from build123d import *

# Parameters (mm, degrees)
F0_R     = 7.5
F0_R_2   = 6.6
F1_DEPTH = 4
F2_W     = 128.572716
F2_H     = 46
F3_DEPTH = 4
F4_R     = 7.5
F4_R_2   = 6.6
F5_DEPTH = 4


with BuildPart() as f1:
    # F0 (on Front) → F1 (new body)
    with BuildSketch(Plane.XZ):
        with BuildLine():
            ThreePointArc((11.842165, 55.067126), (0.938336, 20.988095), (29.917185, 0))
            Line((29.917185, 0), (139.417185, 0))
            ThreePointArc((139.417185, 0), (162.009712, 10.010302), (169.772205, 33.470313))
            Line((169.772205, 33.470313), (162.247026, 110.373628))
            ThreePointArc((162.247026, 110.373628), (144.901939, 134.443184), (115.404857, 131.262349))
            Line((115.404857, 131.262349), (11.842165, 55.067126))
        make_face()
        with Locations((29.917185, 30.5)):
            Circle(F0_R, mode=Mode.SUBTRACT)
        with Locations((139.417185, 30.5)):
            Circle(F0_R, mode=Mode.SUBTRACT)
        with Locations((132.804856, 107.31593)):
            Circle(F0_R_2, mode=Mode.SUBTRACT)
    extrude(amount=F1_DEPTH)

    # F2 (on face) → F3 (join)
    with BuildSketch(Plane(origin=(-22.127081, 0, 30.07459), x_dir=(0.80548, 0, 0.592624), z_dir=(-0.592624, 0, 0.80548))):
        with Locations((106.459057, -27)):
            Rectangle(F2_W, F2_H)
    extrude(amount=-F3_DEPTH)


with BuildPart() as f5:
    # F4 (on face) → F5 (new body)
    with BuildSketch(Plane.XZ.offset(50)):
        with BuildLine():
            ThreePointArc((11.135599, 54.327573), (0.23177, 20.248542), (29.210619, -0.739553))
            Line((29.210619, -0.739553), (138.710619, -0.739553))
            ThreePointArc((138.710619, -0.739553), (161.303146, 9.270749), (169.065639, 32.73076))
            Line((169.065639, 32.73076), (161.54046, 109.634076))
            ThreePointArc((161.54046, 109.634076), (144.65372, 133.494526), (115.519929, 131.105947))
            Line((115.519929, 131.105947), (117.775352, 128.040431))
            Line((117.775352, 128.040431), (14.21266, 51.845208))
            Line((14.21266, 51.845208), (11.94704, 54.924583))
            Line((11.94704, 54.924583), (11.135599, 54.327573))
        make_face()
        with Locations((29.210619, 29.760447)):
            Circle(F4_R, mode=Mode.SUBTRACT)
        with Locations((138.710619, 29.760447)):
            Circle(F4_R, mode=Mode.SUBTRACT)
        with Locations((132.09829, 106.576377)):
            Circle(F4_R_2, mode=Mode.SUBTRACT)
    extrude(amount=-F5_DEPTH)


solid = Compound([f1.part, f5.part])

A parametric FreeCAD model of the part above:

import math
import FreeCAD as App
import Part
import Sketcher

V = App.Vector


def add_polygon(sketch, points):
    """Adds a closed chain of lines whose ends are joined by coincident constraints."""
    first, n = sketch.GeometryCount, len(points)
    for a, b in zip(points, points[1:] + points[:1]):
        sketch.addGeometry(Part.LineSegment(App.Vector(*a, 0), App.Vector(*b, 0)), False)
    for i in range(n):
        sketch.addConstraint(Sketcher.Constraint("Coincident", first + i, 2, first + (i + 1) % n, 1))

doc = App.newDocument("Part")
body = doc.addObject("PartDesign::Body", "Body")

# Sketch on XZ plane
sketch1 = body.newObject("Sketcher::SketchObject", "Sketch")
sketch1.AttachmentSupport = (doc.getObject("XZ_Plane"), [""])
sketch1.MapMode = "FlatFace"
sketch1.addGeometry(Part.ArcOfCircle(Part.Circle(V(30, 31, 0), V(0, 0, 1), 31), math.radians(126), math.radians(270)), False)
sketch1.addGeometry(Part.LineSegment(V(30, 0, 0), V(139, 0, 0)), False)
sketch1.addGeometry(Part.ArcOfCircle(Part.Circle(V(139, 30, 0), V(0, 0, 1), 30), math.radians(-90), math.radians(6)), False)
sketch1.addGeometry(Part.LineSegment(V(170, 33, 0), V(162, 110, 0)), False)
sketch1.addGeometry(Part.ArcOfCircle(Part.Circle(V(133, 108, 0), V(0, 0, 1), 29), math.radians(6), math.radians(126)), False)
sketch1.addGeometry(Part.LineSegment(V(115, 131, 0), V(12, 55, 0)), False)
sketch1.addGeometry(Part.Circle(V(30, 30, 0), V(0, 0, 1), 8), False)
sketch1.addGeometry(Part.Circle(V(139, 30, 0), V(0, 0, 1), 8), False)
sketch1.addGeometry(Part.Circle(V(133, 107, 0), V(0, 0, 1), 7), False)
sketch1.addConstraint(Sketcher.Constraint("Tangent", 0, 2, 1, 1))
sketch1.addConstraint(Sketcher.Constraint("Tangent", 1, 2, 2, 1))
sketch1.addConstraint(Sketcher.Constraint("Tangent", 2, 2, 3, 1))
sketch1.addConstraint(Sketcher.Constraint("Tangent", 3, 2, 4, 1))
sketch1.addConstraint(Sketcher.Constraint("Tangent", 4, 2, 5, 1))
sketch1.addConstraint(Sketcher.Constraint("Tangent", 5, 2, 0, 1))
sketch1.addConstraint(Sketcher.Constraint("Horizontal", 1))
sketch1.addConstraint(Sketcher.Constraint("Coincident", 6, 3, 0, 3))
sketch1.addConstraint(Sketcher.Constraint("Coincident", 7, 3, 2, 3))
sketch1.addConstraint(Sketcher.Constraint("Equal", 0, 2))
sketch1.addConstraint(Sketcher.Constraint("Equal", 6, 7))
sketch1.addConstraint(Sketcher.Constraint("PointOnObject", 0, 2, -1))
sketch1.addConstraint(Sketcher.Constraint("Diameter", 6, 15.0))
sketch1.addConstraint(Sketcher.Constraint("Diameter", 8, 13.2))
sketch1.addConstraint(Sketcher.Constraint("Radius", 0, 30.5))
sketch1.addConstraint(Sketcher.Constraint("Radius", 4, 29.5))
sketch1.addConstraint(Sketcher.Constraint("DistanceX", 1, 1, 1, 2, 109.5))
sketch1.addConstraint(Sketcher.Constraint("DistanceX", 4, 2, 8, 3, 17.399999))
sketch1.addConstraint(Sketcher.Constraint("DistanceY", 8, 3, 3, 2, 3.057698))
sketch1.addConstraint(Sketcher.Constraint("DistanceY", -1, 1, 8, 3, 107.31593))
sketch1.addConstraint(Sketcher.Constraint("DistanceY", -1, 1, 4, 2, 131.262349))
sketch1.addConstraint(Sketcher.Constraint("DistanceX", -1, 1, 0, 3, 29.917185))
pad1 = body.newObject("PartDesign::Pad", "Pad")
pad1.Profile = sketch1
pad1.Length = 4

# Sketch on an angled plane
sketch2 = body.newObject("Sketcher::SketchObject", "Sketch001")
sketch2.Placement = App.Placement(V(-22.127081, 0, 30.07459), App.Rotation(V(0.805479502, 0, 0.592623634), V(0, 1, 0), V(-0.592623634, 0, 0.805479502), "ZXY"))
add_polygon(sketch2, [(42, -4), (42, -50), (171, -50), (171, -4)])  # lines 0-3
sketch2.addConstraint(Sketcher.Constraint("Vertical", 0))
sketch2.addConstraint(Sketcher.Constraint("Horizontal", 1))
sketch2.addConstraint(Sketcher.Constraint("Vertical", 2))
sketch2.addConstraint(Sketcher.Constraint("Horizontal", 3))
sketch2.addConstraint(Sketcher.Constraint("DistanceY", 0, 2, 0, 1, 46.0))
sketch2.addConstraint(Sketcher.Constraint("DistanceY", 0, 2, -1, 1, 50.0))
sketch2.addConstraint(Sketcher.Constraint("DistanceX", -1, 1, 0, 2, 42.172699))
sketch2.addConstraint(Sketcher.Constraint("DistanceX", 1, 1, 1, 2, 128.572716))
pad2 = body.newObject("PartDesign::Pad", "Pad001")
pad2.Profile = sketch2
pad2.Length = 4
pad2.Reversed = True
body2 = doc.addObject("PartDesign::Body", "Body001")

# Sketch on XZ plane
sketch3 = body2.newObject("Sketcher::SketchObject", "Sketch002")
sketch3.AttachmentSupport = (doc.getObject("XZ_Plane001"), [""])
sketch3.MapMode = "FlatFace"
sketch3.AttachmentOffset = App.Placement(V(0, 0, 50), App.Rotation())
sketch3.addGeometry(Part.ArcOfCircle(Part.Circle(V(29.2, 29.8, 0), V(0, 0, 1), 30.5), math.radians(126), math.radians(270)), False)
sketch3.addGeometry(Part.LineSegment(V(29.2, -0.7, 0), V(138.7, -0.7, 0)), False)
sketch3.addGeometry(Part.ArcOfCircle(Part.Circle(V(138.7, 29.8, 0), V(0, 0, 1), 30.5), math.radians(-90), math.radians(6)), False)
sketch3.addGeometry(Part.LineSegment(V(169.1, 32.7, 0), V(161.5, 109.6, 0)), False)
sketch3.addGeometry(Part.ArcOfCircle(Part.Circle(V(132.2, 106.8, 0), V(0, 0, 1), 29.5), math.radians(6), math.radians(124)), False)
sketch3.addGeometry(Part.LineSegment(V(115.5, 131.1, 0), V(117.8, 128, 0)), False)
sketch3.addGeometry(Part.LineSegment(V(117.8, 128, 0), V(14.2, 51.8, 0)), False)
sketch3.addGeometry(Part.LineSegment(V(14.2, 51.8, 0), V(11.9, 54.9, 0)), False)
sketch3.addGeometry(Part.LineSegment(V(11.9, 54.9, 0), V(11.1, 54.3, 0)), False)
sketch3.addGeometry(Part.Circle(V(29.2, 29.8, 0), V(0, 0, 1), 7.5), False)
sketch3.addGeometry(Part.Circle(V(138.7, 29.8, 0), V(0, 0, 1), 7.5), False)
sketch3.addGeometry(Part.Circle(V(132.1, 106.6, 0), V(0, 0, 1), 6.6), False)
sketch3.addConstraint(Sketcher.Constraint("Tangent", 0, 2, 1, 1))
sketch3.addConstraint(Sketcher.Constraint("Tangent", 1, 2, 2, 1))
sketch3.addConstraint(Sketcher.Constraint("Tangent", 2, 2, 3, 1))
sketch3.addConstraint(Sketcher.Constraint("Tangent", 3, 2, 4, 1))
sketch3.addConstraint(Sketcher.Constraint("Coincident", 4, 2, 5, 1))
sketch3.addConstraint(Sketcher.Constraint("Coincident", 5, 2, 6, 1))
sketch3.addConstraint(Sketcher.Constraint("Coincident", 6, 2, 7, 1))
sketch3.addConstraint(Sketcher.Constraint("Coincident", 7, 2, 8, 1))
sketch3.addConstraint(Sketcher.Constraint("Tangent", 8, 2, 0, 1))
sketch3.addConstraint(Sketcher.Constraint("Horizontal", 1))
sketch3.addConstraint(Sketcher.Constraint("Coincident", 9, 3, 0, 3))
sketch3.addConstraint(Sketcher.Constraint("Coincident", 10, 3, 2, 3))
sketch3.addConstraint(Sketcher.Constraint("Equal", 0, 2))
sketch3.addConstraint(Sketcher.Constraint("Equal", 9, 10))
sketch3.addConstraint(Sketcher.Constraint("Perpendicular", 5, 6))
sketch3.addConstraint(Sketcher.Constraint("Perpendicular", 6, 7))
sketch3.addConstraint(Sketcher.Constraint("Perpendicular", 7, 8))
sketch3.addConstraint(Sketcher.Constraint("Diameter", 9, 15.0))
sketch3.addConstraint(Sketcher.Constraint("Diameter", 11, 13.2))
sketch3.addConstraint(Sketcher.Constraint("Radius", 0, 30.5))
sketch3.addConstraint(Sketcher.Constraint("Radius", 4, 29.5))
sketch3.addConstraint(Sketcher.Constraint("DistanceX", 1, 1, 1, 2, 109.5))
sketch3.addConstraint(Sketcher.Constraint("Distance", 8, 1.007401))
sketch3.addConstraint(Sketcher.Constraint("DistanceX", -1, 1, 8, 2, 11.135599))
sketch3.addConstraint(Sketcher.Constraint("DistanceY", 2, 3, 4, 3, 77.000702))
sketch3.addConstraint(Sketcher.Constraint("DistanceY", 11, 3, 3, 2, 3.057699))
sketch3.addConstraint(Sketcher.Constraint("DistanceY", 4, 3, 4, 2, 24.344798))
sketch3.addConstraint(Sketcher.Constraint("DistanceX", -1, 1, 0, 3, 29.210619))
sketch3.addConstraint(Sketcher.Constraint("DistanceY", -1, 1, 4, 3, 106.761149))
sketch3.addConstraint(Sketcher.Constraint("DistanceX", -1, 1, 11, 3, 132.09829))
sketch3.addConstraint(Sketcher.Constraint("DistanceX", -1, 1, 2, 2, 169.065639))
sketch3.addConstraint(Sketcher.Constraint("DistanceX", -1, 1, 5, 2, 117.775352))
pad3 = body2.newObject("PartDesign::Pad", "Pad002")
pad3.Profile = sketch3
pad3.Length = 4
pad3.Reversed = True

doc.recompute()
